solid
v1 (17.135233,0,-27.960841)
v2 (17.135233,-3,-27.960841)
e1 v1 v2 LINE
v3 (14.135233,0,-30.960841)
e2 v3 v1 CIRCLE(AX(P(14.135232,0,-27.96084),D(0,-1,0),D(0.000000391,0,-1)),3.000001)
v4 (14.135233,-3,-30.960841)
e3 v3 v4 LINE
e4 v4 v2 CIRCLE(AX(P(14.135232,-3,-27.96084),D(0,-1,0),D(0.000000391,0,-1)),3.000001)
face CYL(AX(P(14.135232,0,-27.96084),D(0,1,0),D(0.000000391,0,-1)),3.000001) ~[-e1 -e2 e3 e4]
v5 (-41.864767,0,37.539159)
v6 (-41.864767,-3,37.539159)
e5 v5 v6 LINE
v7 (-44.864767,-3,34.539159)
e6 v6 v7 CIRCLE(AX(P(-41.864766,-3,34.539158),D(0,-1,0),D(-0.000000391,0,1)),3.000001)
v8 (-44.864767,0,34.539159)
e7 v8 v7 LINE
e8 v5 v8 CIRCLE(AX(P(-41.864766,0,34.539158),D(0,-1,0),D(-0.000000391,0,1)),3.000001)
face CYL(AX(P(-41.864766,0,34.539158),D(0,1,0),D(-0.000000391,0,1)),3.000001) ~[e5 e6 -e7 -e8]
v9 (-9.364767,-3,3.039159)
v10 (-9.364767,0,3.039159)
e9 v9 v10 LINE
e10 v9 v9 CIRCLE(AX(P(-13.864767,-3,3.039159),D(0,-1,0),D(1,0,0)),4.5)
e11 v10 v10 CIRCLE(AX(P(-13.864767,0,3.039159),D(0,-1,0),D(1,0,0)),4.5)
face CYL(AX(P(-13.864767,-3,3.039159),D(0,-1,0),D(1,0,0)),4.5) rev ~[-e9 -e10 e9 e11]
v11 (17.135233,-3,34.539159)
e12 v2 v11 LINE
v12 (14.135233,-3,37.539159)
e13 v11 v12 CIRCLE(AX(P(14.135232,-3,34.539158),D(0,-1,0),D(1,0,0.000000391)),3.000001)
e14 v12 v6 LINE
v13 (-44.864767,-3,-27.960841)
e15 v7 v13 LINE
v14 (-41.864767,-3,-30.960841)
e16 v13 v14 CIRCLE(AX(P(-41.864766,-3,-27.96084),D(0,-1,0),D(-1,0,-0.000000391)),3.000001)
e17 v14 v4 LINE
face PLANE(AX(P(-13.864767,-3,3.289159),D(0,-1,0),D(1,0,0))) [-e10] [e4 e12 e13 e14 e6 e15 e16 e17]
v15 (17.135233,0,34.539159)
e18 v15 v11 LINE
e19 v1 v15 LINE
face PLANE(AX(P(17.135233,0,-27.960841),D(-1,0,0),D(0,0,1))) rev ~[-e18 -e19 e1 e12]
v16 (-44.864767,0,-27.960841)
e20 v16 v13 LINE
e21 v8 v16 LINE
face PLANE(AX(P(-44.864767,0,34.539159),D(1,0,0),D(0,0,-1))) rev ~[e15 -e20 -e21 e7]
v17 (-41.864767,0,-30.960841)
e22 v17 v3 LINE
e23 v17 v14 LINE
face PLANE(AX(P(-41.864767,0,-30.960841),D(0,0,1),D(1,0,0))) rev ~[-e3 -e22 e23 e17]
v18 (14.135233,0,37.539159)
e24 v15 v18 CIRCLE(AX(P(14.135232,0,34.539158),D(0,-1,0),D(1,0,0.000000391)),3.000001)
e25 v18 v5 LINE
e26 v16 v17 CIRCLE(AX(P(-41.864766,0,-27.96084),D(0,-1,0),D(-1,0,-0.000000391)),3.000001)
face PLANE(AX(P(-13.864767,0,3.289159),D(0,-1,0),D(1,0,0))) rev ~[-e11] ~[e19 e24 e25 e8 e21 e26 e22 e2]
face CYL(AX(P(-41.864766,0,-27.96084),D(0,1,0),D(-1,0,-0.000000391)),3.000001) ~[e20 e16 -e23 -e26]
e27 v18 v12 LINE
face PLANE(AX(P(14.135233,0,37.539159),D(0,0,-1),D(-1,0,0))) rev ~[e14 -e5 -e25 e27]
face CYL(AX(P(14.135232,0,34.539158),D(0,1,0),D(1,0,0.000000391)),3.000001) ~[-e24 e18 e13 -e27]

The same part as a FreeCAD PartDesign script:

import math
import FreeCAD as App
import Part
import Sketcher

V = App.Vector

doc = App.newDocument("Part")
body = doc.addObject("PartDesign::Body", "Body")

# Sketch on XZ plane
sketch1 = body.newObject("Sketcher::SketchObject", "Sketch")
sketch1.AttachmentSupport = (doc.getObject("XZ_Plane"), [""])
sketch1.MapMode = "FlatFace"
sketch1.addGeometry([
    Part.LineSegment(V(14.1, 37.5, 0), V(-41.9, 37.5, 0)),  # 0
    Part.ArcOfCircle(Part.Circle(V(-41.9, 34.5, 0), V(0, 0, 1), 3), math.radians(90), math.radians(180)),  # 1
    Part.LineSegment(V(-44.9, 34.5, 0), V(-44.9, -28, 0)),  # 2
    Part.ArcOfCircle(Part.Circle(V(-41.9, -28, 0), V(0, 0, 1), 3), math.radians(-180), math.radians(-90)),  # 3
    Part.LineSegment(V(-41.9, -31, 0), V(14.1, -31, 0)),  # 4
    Part.ArcOfCircle(Part.Circle(V(14.1, -28, 0), V(0, 0, 1), 3), math.radians(-90), math.radians(0)),  # 5
    Part.LineSegment(V(17.1, -28, 0), V(17.1, 34.5, 0)),  # 6
    Part.ArcOfCircle(Part.Circle(V(14.1, 34.5, 0), V(0, 0, 1), 3), math.radians(0), math.radians(90)),  # 7
], False)
sketch1.addConstraint([
    Sketcher.Constraint("Tangent", 0, 2, 1, 1),
    Sketcher.Constraint("Tangent", 1, 2, 2, 1),
    Sketcher.Constraint("Tangent", 2, 2, 3, 1),
    Sketcher.Constraint("Tangent", 3, 2, 4, 1),
    Sketcher.Constraint("Tangent", 4, 2, 5, 1),
    Sketcher.Constraint("Tangent", 5, 2, 6, 1),
    Sketcher.Constraint("Tangent", 6, 2, 7, 1),
    Sketcher.Constraint("Tangent", 7, 2, 0, 1),
    Sketcher.Constraint("Horizontal", 0),
    Sketcher.Constraint("Vertical", 2),
    Sketcher.Constraint("Horizontal", 4),
    Sketcher.Constraint("Vertical", 6),
    Sketcher.Constraint("Equal", 1, 3),
    Sketcher.Constraint("Equal", 3, 5),
    Sketcher.Constraint("Equal", 5, 7),
    Sketcher.Constraint("Radius", 1, 3.000001),
    Sketcher.Constraint("DistanceX", 0, 2, 0, 1, 56.0),
    Sketcher.Constraint("DistanceY", 2, 2, 2, 1, 62.5),
    Sketcher.Constraint("DistanceY", 3, 3, -1, 1, 27.96084),
    Sketcher.Constraint("DistanceX", -1, 1, 5, 3, 14.135232),
])
pad1 = body.newObject("PartDesign::Pad", "Pad")
pad1.Profile = sketch1
pad1.Length = 3

# Sketch on XZ plane
sketch2 = body.newObject("Sketcher::SketchObject", "Sketch001")
sketch2.AttachmentSupport = (doc.getObject("XZ_Plane"), [""])
sketch2.MapMode = "FlatFace"
sketch2.AttachmentOffset = App.Placement(V(0, 0, 3), App.Rotation())
sketch2.addGeometry(Part.Circle(V(-13.9, 3, 0), V(0, 0, 1), 4.5), False)
sketch2.addConstraint([
    Sketcher.Constraint("Diameter", 0, 9.0),
    Sketcher.Constraint("DistanceY", -1, 1, 0, 3, 3.039159),
    Sketcher.Constraint("DistanceX", 0, 3, -1, 1, 13.864767),
])
pocket1 = body.newObject("PartDesign::Pocket", "Pocket")
pocket1.Profile = sketch2
pocket1.Length = 25

doc.recompute()
